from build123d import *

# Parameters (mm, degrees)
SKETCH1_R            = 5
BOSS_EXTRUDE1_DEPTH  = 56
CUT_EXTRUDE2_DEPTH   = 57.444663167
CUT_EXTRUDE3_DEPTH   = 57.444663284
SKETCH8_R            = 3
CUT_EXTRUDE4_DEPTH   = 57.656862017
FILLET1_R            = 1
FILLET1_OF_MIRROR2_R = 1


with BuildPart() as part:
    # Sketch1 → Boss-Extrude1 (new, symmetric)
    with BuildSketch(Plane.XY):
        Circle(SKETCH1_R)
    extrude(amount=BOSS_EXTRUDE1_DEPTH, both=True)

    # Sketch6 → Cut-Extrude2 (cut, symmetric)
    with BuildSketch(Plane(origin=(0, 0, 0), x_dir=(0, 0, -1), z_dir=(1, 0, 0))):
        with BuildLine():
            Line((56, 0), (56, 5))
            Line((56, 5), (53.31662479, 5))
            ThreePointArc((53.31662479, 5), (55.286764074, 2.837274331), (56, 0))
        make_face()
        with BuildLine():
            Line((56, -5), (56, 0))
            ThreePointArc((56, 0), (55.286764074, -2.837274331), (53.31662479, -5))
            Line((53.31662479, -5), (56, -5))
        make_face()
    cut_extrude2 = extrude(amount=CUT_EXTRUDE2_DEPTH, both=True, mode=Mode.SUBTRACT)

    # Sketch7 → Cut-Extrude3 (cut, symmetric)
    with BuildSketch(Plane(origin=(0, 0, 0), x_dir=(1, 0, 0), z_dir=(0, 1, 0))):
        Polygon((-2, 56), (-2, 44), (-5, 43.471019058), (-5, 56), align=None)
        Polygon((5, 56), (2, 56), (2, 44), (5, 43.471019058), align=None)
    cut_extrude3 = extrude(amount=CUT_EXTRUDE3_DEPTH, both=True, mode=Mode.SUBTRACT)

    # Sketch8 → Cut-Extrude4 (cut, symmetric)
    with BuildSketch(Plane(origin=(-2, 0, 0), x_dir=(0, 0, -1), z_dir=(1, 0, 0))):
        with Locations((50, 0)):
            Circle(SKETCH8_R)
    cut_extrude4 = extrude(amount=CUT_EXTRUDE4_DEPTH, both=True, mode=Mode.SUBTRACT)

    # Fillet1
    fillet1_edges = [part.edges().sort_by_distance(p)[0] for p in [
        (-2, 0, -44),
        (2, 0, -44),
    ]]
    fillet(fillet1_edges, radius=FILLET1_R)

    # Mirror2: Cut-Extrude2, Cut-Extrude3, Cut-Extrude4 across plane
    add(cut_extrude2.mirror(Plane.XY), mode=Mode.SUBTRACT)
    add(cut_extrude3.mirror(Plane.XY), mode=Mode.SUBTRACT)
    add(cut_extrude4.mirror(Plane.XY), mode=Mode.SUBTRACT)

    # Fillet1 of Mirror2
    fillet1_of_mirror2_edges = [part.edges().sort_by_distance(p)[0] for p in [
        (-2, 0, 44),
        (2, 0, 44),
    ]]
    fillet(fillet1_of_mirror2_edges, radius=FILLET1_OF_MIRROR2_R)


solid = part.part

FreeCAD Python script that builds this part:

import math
import FreeCAD as App
import Part
import Sketcher
Q = App.Units.Quantity


def edges_at(feature, points):
    """Names of the edges that pass closest to the given points."""
    edges = feature.Shape.Edges
    near = lambda p: min(range(len(edges)), key=lambda i: edges[i].distToShape(Part.Vertex(*p))[0])
    return sorted({f"Edge{near(p) + 1}" for p in points})


def add_polygon(sketch, points):
    """Adds a closed chain of lines whose ends are joined by coincident constraints."""
    first, n = sketch.GeometryCount, len(points)
    for a, b in zip(points, points[1:] + points[:1]):
        sketch.addGeometry(Part.LineSegment(App.Vector(*a, 0), App.Vector(*b, 0)), False)
    for i in range(n):
        sketch.addConstraint(Sketcher.Constraint("Coincident", first + i, 2, first + (i + 1) % n, 1))

doc = App.newDocument("Part")
body = doc.addObject("PartDesign::Body", "Body")

sketch1 = body.newObject("Sketcher::SketchObject", "Sketch")
sketch1.AttachmentSupport = (doc.getObject("XY_Plane"), [""])
sketch1.MapMode = "FlatFace"
sketch1.addGeometry(Part.Circle(App.Vector(0, 0, 0), App.Vector(0, 0, 1), 5), False)
sketch1.addConstraint([
    Sketcher.Constraint("Coincident", 0, 3, -1, 1),
    Sketcher.Constraint("Diameter", 0, 10.0),
])
pad1 = body.newObject("PartDesign::Pad", "Pad")
pad1.Profile = sketch1
pad1.Length = 112
pad1.Midplane = True

sketch2 = body.newObject("Sketcher::SketchObject", "Sketch001")
sketch2.AttachmentSupport = (doc.getObject("YZ_Plane"), [""])
sketch2.MapMode = "FlatFace"
sketch2.addGeometry([
    Part.LineSegment(App.Vector(0, -56, 0), App.Vector(5, -56, 0)),
    Part.LineSegment(App.Vector(5, -56, 0), App.Vector(5, -53.316625, 0)),
    Part.ArcOfCircle(Part.Circle(App.Vector(0, -50, 0), App.Vector(0, 0, 1), 6), math.radians(-90), math.radians(-33.55731)),
    Part.LineSegment(App.Vector(-5, -56, 0), App.Vector(0, -56, 0)),
    Part.ArcOfCircle(Part.Circle(App.Vector(0, -50, 0), App.Vector(0, 0, 1), 6), math.radians(-146.44269), math.radians(-90)),
    Part.LineSegment(App.Vector(-5, -53.316625, 0), App.Vector(-5, -56, 0)),
], False)
sketch2.addConstraint([
    Sketcher.Constraint("Coincident", 0, 2, 1, 1),
    Sketcher.Constraint("Coincident", 1, 2, 2, 2),
    Sketcher.Constraint("Tangent", 2, 1, 0, 1),
    Sketcher.Constraint("Tangent", 3, 2, 4, 2),
    Sketcher.Constraint("Coincident", 4, 1, 5, 1),
    Sketcher.Constraint("Coincident", 5, 2, 3, 1),
    Sketcher.Constraint("Horizontal", 0),
    Sketcher.Constraint("Vertical", 1),
    Sketcher.Constraint("Horizontal", 3),
    Sketcher.Constraint("Vertical", 5),
    Sketcher.Constraint("Coincident", 4, 3, 2, 3),
    Sketcher.Constraint("Equal", 2, 4),
    Sketcher.Constraint("Symmetric", 1, 2, 4, 1, -2),
    Sketcher.Constraint("Radius", 2, 6.0),
    Sketcher.Constraint("DistanceX", 0, 1, 0, 2, 5.0),
    Sketcher.Constraint("DistanceY", 2, 3, -1, 1, 50.0),
])
pocket1 = body.newObject("PartDesign::Pocket", "Pocket")
pocket1.Profile = sketch2
pocket1.Length = 114.889326
pocket1.Midplane = True

sketch3 = body.newObject("Sketcher::SketchObject", "Sketch002")
sketch3.AttachmentSupport = (doc.getObject("XZ_Plane"), [""])
sketch3.MapMode = "FlatFace"
add_polygon(sketch3, [(-2, -44), (-2, -56), (-5, -56), (-5, -43.471019)])
add_polygon(sketch3, [(5, -56), (2, -56), (2, -44), (5, -43.471019)])
sketch3.addConstraint([
    Sketcher.Constraint("Vertical", 0),
    Sketcher.Constraint("Horizontal", 1),
    Sketcher.Constraint("Vertical", 2),
    Sketcher.Constraint("Horizontal", 4),
    Sketcher.Constraint("Vertical", 5),
    Sketcher.Constraint("Vertical", 7),
    Sketcher.Constraint("Symmetric", 0, 2, 4, 2, -2),
    Sketcher.Constraint("Symmetric", 2, 2, 6, 2, -2),
    Sketcher.Constraint("Horizontal", 3, 2, 5, 2),
    Sketcher.Constraint("DistanceX", 1, 2, 1, 1, 3.0),
    Sketcher.Constraint("DistanceY", 0, 2, 0, 1, 12.0),
    Sketcher.Constraint("Angle", 3, Q("-10 deg")),
    Sketcher.Constraint("DistanceX", 0, 2, -1, 1, 2.0),
    Sketcher.Constraint("DistanceY", 0, 2, -1, 1, 56.0),
])
pocket2 = body.newObject("PartDesign::Pocket", "Pocket001")
pocket2.Profile = sketch3
pocket2.Length = 114.889327
pocket2.Midplane = True

sketch4 = body.newObject("Sketcher::SketchObject", "Sketch003")
sketch4.AttachmentSupport = (doc.getObject("YZ_Plane"), [""])
sketch4.MapMode = "FlatFace"
sketch4.AttachmentOffset = App.Placement(App.Vector(0, 0, -2), App.Rotation())
sketch4.addGeometry(Part.Circle(App.Vector(0, -50, 0), App.Vector(0, 0, 1), 3), False)
sketch4.addConstraint([
    Sketcher.Constraint("PointOnObject", 0, 3, -2),
    Sketcher.Constraint("Diameter", 0, 6.0),
    Sketcher.Constraint("DistanceY", 0, 3, -1, 1, 50.0),
])
pocket3 = body.newObject("PartDesign::Pocket", "Pocket002")
pocket3.Profile = sketch4
pocket3.Length = 115.313724
pocket3.Midplane = True
doc.recompute()

fillet = body.newObject("PartDesign::Fillet", "Fillet")
fillet.Base = (pocket3, edges_at(pocket3, [(-2, 0, -44), (2, 0, -44)]))
fillet.Radius = 1
doc.recompute()

mirrored = body.newObject("PartDesign::Mirrored", "Mirrored")
mirrored.Originals = [pocket1, pocket2, pocket3]
mirrored.MirrorPlane = (doc.getObject("XY_Plane"), [""])
body.Tip = mirrored
doc.recompute()

fillet2 = body.newObject("PartDesign::Fillet", "Fillet001")
fillet2.Base = (mirrored, edges_at(mirrored, [(-2, 0, 44), (2, 0, 44)]))
fillet2.Radius = 1

doc.recompute()
